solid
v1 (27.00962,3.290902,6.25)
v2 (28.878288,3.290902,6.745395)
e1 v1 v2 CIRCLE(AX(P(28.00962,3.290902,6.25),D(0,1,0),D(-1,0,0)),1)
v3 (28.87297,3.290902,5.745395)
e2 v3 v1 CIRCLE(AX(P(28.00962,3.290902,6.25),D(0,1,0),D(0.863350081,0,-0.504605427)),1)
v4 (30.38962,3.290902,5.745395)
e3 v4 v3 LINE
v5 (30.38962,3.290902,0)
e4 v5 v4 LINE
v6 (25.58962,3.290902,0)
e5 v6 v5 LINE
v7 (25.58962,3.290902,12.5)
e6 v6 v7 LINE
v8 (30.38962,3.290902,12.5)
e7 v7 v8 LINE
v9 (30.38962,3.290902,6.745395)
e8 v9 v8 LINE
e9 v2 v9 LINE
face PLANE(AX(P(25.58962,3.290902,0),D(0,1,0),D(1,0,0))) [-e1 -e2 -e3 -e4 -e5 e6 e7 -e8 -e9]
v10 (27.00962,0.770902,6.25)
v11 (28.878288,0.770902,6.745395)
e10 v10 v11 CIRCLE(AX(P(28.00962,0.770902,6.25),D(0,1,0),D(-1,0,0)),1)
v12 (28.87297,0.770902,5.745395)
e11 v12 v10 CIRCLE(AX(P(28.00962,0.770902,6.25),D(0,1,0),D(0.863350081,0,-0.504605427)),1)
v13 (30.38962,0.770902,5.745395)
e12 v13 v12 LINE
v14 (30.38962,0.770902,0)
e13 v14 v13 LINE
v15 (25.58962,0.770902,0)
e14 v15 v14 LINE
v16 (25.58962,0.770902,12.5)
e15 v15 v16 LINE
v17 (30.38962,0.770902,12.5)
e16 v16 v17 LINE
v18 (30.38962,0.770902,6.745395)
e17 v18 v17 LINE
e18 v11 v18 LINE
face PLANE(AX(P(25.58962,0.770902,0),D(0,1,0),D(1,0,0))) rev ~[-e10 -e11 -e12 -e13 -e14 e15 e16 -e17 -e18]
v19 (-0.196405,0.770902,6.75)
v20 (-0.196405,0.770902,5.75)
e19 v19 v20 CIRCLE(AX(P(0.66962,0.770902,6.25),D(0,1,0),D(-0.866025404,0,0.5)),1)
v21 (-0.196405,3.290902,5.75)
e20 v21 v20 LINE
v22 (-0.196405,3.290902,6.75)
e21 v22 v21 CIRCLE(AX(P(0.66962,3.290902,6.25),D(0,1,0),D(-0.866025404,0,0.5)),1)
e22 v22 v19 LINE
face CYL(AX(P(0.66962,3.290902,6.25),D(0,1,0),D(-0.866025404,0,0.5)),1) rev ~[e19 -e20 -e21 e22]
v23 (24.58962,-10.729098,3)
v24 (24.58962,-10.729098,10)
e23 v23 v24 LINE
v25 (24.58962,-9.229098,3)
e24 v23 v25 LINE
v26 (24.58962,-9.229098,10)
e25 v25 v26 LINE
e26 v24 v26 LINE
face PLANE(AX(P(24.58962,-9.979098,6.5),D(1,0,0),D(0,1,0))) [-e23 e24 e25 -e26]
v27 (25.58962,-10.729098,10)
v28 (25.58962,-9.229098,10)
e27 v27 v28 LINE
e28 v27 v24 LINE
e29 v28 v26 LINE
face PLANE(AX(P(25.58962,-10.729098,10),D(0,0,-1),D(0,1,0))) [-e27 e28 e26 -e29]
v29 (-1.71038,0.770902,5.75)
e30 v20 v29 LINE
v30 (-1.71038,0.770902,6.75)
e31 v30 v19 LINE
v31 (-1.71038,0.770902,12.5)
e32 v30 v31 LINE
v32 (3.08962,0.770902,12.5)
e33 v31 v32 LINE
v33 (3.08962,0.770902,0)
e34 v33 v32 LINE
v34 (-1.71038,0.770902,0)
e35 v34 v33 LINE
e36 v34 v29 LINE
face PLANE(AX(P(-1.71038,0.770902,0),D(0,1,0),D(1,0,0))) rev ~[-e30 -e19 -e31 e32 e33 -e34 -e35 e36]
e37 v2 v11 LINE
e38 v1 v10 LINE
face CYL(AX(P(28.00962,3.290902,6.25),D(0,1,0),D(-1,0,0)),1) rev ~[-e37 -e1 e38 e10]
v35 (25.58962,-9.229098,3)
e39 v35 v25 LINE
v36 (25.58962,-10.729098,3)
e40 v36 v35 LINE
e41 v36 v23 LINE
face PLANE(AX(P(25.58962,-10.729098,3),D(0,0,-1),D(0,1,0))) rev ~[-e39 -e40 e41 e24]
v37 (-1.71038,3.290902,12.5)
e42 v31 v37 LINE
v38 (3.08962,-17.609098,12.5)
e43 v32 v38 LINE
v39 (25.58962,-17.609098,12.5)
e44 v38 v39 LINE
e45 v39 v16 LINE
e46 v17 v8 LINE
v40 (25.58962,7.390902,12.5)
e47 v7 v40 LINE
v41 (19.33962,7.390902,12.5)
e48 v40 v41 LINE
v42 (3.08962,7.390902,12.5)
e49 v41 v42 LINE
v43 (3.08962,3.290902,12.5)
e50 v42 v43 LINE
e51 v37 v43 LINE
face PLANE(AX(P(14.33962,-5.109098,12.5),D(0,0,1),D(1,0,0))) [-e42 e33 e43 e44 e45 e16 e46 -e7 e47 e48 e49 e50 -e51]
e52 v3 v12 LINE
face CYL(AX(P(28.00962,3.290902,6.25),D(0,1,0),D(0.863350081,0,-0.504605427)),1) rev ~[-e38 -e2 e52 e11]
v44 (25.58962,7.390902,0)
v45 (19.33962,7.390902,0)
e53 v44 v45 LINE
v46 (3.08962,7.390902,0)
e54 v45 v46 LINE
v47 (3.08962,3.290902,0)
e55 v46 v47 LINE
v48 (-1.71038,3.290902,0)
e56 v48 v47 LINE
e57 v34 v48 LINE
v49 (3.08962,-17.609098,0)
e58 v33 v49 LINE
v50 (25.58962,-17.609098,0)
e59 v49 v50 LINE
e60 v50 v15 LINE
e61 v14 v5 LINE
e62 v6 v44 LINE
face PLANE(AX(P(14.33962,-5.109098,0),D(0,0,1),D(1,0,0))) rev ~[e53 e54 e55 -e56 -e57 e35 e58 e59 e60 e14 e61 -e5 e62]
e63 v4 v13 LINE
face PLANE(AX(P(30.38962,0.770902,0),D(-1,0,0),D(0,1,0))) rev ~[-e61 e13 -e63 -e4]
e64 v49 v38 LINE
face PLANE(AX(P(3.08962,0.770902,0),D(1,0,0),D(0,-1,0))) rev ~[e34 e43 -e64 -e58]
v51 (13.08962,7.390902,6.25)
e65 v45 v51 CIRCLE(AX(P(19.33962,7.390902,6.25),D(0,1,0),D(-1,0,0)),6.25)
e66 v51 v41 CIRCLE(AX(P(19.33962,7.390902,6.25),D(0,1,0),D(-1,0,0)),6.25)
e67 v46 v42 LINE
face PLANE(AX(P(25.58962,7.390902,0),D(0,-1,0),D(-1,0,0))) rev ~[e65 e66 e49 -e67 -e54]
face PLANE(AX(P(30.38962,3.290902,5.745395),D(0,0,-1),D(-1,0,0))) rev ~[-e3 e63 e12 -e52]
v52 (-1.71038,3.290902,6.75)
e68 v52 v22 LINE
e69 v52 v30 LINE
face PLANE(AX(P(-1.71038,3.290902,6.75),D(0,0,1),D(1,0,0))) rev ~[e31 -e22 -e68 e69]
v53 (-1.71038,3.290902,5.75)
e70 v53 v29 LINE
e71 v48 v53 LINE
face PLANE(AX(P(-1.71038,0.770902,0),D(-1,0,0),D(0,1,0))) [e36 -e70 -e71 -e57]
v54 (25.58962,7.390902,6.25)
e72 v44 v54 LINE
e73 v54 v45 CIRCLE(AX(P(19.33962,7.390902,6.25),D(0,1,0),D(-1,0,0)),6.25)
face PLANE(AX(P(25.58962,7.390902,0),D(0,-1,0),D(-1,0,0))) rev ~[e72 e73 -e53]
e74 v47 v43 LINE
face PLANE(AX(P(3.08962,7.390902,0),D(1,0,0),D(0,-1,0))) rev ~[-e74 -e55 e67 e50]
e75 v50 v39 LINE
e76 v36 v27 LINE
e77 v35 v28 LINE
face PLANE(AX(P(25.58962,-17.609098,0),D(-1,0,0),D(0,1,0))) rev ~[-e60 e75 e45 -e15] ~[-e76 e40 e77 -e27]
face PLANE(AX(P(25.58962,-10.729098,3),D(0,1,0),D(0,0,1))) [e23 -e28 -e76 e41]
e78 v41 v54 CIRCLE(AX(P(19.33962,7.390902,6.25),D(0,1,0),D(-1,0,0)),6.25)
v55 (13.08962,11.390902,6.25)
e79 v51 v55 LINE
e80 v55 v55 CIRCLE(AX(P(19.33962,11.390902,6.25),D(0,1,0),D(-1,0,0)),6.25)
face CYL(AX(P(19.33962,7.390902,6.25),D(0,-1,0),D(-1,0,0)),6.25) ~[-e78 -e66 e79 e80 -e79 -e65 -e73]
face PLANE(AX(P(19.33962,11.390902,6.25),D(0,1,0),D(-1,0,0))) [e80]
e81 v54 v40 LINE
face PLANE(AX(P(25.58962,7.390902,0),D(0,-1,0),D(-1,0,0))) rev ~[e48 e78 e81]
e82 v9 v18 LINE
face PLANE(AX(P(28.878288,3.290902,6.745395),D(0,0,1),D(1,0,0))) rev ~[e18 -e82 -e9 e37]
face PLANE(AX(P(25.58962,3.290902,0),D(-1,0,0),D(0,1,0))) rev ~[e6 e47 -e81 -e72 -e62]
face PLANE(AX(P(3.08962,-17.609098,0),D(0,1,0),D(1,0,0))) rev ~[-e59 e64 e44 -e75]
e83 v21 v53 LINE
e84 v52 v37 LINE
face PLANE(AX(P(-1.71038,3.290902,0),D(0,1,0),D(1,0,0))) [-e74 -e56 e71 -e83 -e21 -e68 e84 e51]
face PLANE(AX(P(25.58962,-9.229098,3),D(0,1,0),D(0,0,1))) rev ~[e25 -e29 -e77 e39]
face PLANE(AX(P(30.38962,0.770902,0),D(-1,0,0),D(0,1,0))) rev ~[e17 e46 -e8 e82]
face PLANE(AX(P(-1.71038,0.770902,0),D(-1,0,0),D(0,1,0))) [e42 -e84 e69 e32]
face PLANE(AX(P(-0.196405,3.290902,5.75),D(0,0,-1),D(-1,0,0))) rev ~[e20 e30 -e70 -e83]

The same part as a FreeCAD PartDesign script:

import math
import FreeCAD as App
import Part
import Sketcher
from FreeCAD import Vector
Q = App.Units.Quantity

doc = App.newDocument("Part")
body = doc.addObject("PartDesign::Body", "Body")

# Sketch on XY plane
sketch1 = doc.addObject("Sketcher::SketchObject", "Sketch")
body.addObject(sketch1)
sketch1.AttachmentSupport = (doc.XY_Plane, [""])
sketch1.MapMode = "FlatFace"
sketch1.addGeometry(Part.LineSegment(Vector(25.6, 7.4, 0), Vector(3.1, 7.4, 0)), False)
sketch1.addGeometry(Part.LineSegment(Vector(3.1, 7.4, 0), Vector(3.1, 3.3, 0)), False)
sketch1.addGeometry(Part.LineSegment(Vector(3.1, 3.3, 0), Vector(-1.7, 3.3, 0)), False)
sketch1.addGeometry(Part.LineSegment(Vector(-1.7, 3.3, 0), Vector(-1.7, 0.8, 0)), False)
sketch1.addGeometry(Part.LineSegment(Vector(-1.7, 0.8, 0), Vector(3.1, 0.8, 0)), False)
sketch1.addGeometry(Part.LineSegment(Vector(3.1, 0.8, 0), Vector(3.1, -17.6, 0)), False)
sketch1.addGeometry(Part.LineSegment(Vector(3.1, -17.6, 0), Vector(25.6, -17.6, 0)), False)
sketch1.addGeometry(Part.LineSegment(Vector(25.6, -17.6, 0), Vector(25.6, 0.8, 0)), False)
sketch1.addGeometry(Part.LineSegment(Vector(25.6, 0.8, 0), Vector(30.4, 0.8, 0)), False)
sketch1.addGeometry(Part.LineSegment(Vector(30.4, 0.8, 0), Vector(30.4, 3.3, 0)), False)
sketch1.addGeometry(Part.LineSegment(Vector(30.4, 3.3, 0), Vector(25.6, 3.3, 0)), False)
sketch1.addGeometry(Part.LineSegment(Vector(25.6, 3.3, 0), Vector(25.6, 7.4, 0)), False)
sketch1.addConstraint(Sketcher.Constraint("Coincident", 0, 2, 1, 1))
sketch1.addConstraint(Sketcher.Constraint("Coincident", 1, 2, 2, 1))
sketch1.addConstraint(Sketcher.Constraint("Coincident", 2, 2, 3, 1))
sketch1.addConstraint(Sketcher.Constraint("Coincident", 3, 2, 4, 1))
sketch1.addConstraint(Sketcher.Constraint("Coincident", 4, 2, 5, 1))
sketch1.addConstraint(Sketcher.Constraint("Coincident", 5, 2, 6, 1))
sketch1.addConstraint(Sketcher.Constraint("Coincident", 6, 2, 7, 1))
sketch1.addConstraint(Sketcher.Constraint("Coincident", 7, 2, 8, 1))
sketch1.addConstraint(Sketcher.Constraint("Coincident", 8, 2, 9, 1))
sketch1.addConstraint(Sketcher.Constraint("Coincident", 9, 2, 10, 1))
sketch1.addConstraint(Sketcher.Constraint("Coincident", 10, 2, 11, 1))
sketch1.addConstraint(Sketcher.Constraint("Coincident", 11, 2, 0, 1))
sketch1.addConstraint(Sketcher.Constraint("Horizontal", 0))
sketch1.addConstraint(Sketcher.Constraint("Vertical", 1))
sketch1.addConstraint(Sketcher.Constraint("Horizontal", 2))
sketch1.addConstraint(Sketcher.Constraint("Vertical", 3))
sketch1.addConstraint(Sketcher.Constraint("Horizontal", 4))
sketch1.addConstraint(Sketcher.Constraint("Vertical", 5))
sketch1.addConstraint(Sketcher.Constraint("Horizontal", 6))
sketch1.addConstraint(Sketcher.Constraint("Vertical", 7))
sketch1.addConstraint(Sketcher.Constraint("Horizontal", 8))
sketch1.addConstraint(Sketcher.Constraint("Vertical", 9))
sketch1.addConstraint(Sketcher.Constraint("Horizontal", 10))
sketch1.addConstraint(Sketcher.Constraint("Vertical", 11))
sketch1.addConstraint(Sketcher.Constraint("Horizontal", 4, 2, 7, 2))
sketch1.addConstraint(Sketcher.Constraint("Horizontal", 2, 2, 9, 2))
sketch1.addConstraint(Sketcher.Constraint("Vertical", 1, 2, 4, 2))
sketch1.addConstraint(Sketcher.Constraint("Vertical", 7, 2, 10, 2))
sketch1.addConstraint(Sketcher.Constraint("Equal", 4, 8))
sketch1.addConstraint(Sketcher.Constraint("DistanceX", 0, 2, 0, 1, Q("22.5 mm")))
sketch1.addConstraint(Sketcher.Constraint("DistanceX", 2, 2, 2, 1, Q("4.8 mm")))
sketch1.addConstraint(Sketcher.Constraint("DistanceY", 1, 2, 1, 1, Q("4.1 mm")))
sketch1.addConstraint(Sketcher.Constraint("DistanceY", 5, 2, 0, 2, Q("25 mm")))
sketch1.addConstraint(Sketcher.Constraint("DistanceY", 3, 2, 3, 1, Q("2.52 mm")))
sketch1.addConstraint(Sketcher.Constraint("DistanceY", -1, 1, 0, 2, Q("7.390902 mm")))
sketch1.addConstraint(Sketcher.Constraint("DistanceX", -1, 1, 0, 2, Q("3.08962 mm")))
pad1 = doc.addObject("PartDesign::Pad", "Pad")
body.addObject(pad1)
pad1.Profile = sketch1
pad1.Length = 12.5

# Sketch on YZ plane
sketch2 = doc.addObject("Sketcher::SketchObject", "Sketch001")
body.addObject(sketch2)
sketch2.AttachmentSupport = (doc.YZ_Plane, [""])
sketch2.MapMode = "FlatFace"
sketch2.AttachmentOffset = App.Placement(Vector(0, 0, 25.58962), App.Rotation())
sketch2.addGeometry(Part.LineSegment(Vector(-10.7, 10, 0), Vector(-10.7, 3, 0)), False)
sketch2.addGeometry(Part.LineSegment(Vector(-10.7, 3, 0), Vector(-9.2, 3, 0)), False)
sketch2.addGeometry(Part.LineSegment(Vector(-9.2, 3, 0), Vector(-9.2, 10, 0)), False)
sketch2.addGeometry(Part.LineSegment(Vector(-9.2, 10, 0), Vector(-10.7, 10, 0)), False)
sketch2.addConstraint(Sketcher.Constraint("Coincident", 0, 2, 1, 1))
sketch2.addConstraint(Sketcher.Constraint("Coincident", 1, 2, 2, 1))
sketch2.addConstraint(Sketcher.Constraint("Coincident", 2, 2, 3, 1))
sketch2.addConstraint(Sketcher.Constraint("Coincident", 3, 2, 0, 1))
sketch2.addConstraint(Sketcher.Constraint("Vertical", 0))
sketch2.addConstraint(Sketcher.Constraint("Horizontal", 1))
sketch2.addConstraint(Sketcher.Constraint("Vertical", 2))
sketch2.addConstraint(Sketcher.Constraint("Horizontal", 3))
sketch2.addConstraint(Sketcher.Constraint("DistanceY", 0, 2, 0, 1, Q("7 mm")))
sketch2.addConstraint(Sketcher.Constraint("DistanceX", 1, 1, 1, 2, Q("1.5 mm")))
sketch2.addConstraint(Sketcher.Constraint("DistanceY", -1, 1, 0, 2, Q("3 mm")))
sketch2.addConstraint(Sketcher.Constraint("DistanceX", 0, 2, -1, 1, Q("10.729098 mm")))
pocket1 = doc.addObject("PartDesign::Pocket", "Pocket")
body.addObject(pocket1)
pocket1.Profile = sketch2
pocket1.Length = 1

# Sketch on XZ plane
sketch3 = doc.addObject("Sketcher::SketchObject", "Sketch002")
body.addObject(sketch3)
sketch3.AttachmentSupport = (doc.XZ_Plane, [""])
sketch3.MapMode = "FlatFace"
sketch3.AttachmentOffset = App.Placement(Vector(0, 0, -7.390902), App.Rotation())
sketch3.addGeometry(Part.Circle(Vector(19, 6, 0), Vector(0, 0, 1), 6), False)
sketch3.addConstraint(Sketcher.Constraint("Diameter", 0, Q("12.5 mm")))
sketch3.addConstraint(Sketcher.Constraint("DistanceY", -1, 1, 0, 3, Q("6.25 mm")))
sketch3.addConstraint(Sketcher.Constraint("DistanceX", -1, 1, 0, 3, Q("19.33962 mm")))
pad2 = doc.addObject("PartDesign::Pad", "Pad001")
body.addObject(pad2)
pad2.Profile = sketch3
pad2.Length = 4
pad2.Reversed = True

# Sketch on XZ plane
sketch4 = doc.addObject("Sketcher::SketchObject", "Sketch003")
body.addObject(sketch4)
sketch4.AttachmentSupport = (doc.XZ_Plane, [""])
sketch4.MapMode = "FlatFace"
sketch4.AttachmentOffset = App.Placement(Vector(0, 0, -3.290902), App.Rotation())
sketch4.addGeometry(Part.LineSegment(Vector(30.4, 5.7, 0), Vector(28.9, 5.7, 0)), False)
sketch4.addGeometry(Part.ArcOfCircle(Part.Circle(Vector(28, 6.2, 0), Vector(0, 0, 1), 1), math.radians(180), math.radians(330)), False)
sketch4.addGeometry(Part.ArcOfCircle(Part.Circle(Vector(28, 6.2, 0), Vector(0, 0, 1), 1), math.radians(30), math.radians(180)), False)
sketch4.addGeometry(Part.LineSegment(Vector(28.9, 6.7, 0), Vector(30.4, 6.7, 0)), False)
sketch4.addGeometry(Part.LineSegment(Vector(30.4, 6.7, 0), Vector(30.4, 5.7, 0)), False)
sketch4.addConstraint(Sketcher.Constraint("Coincident", 0, 2, 1, 2))
sketch4.addConstraint(Sketcher.Constraint("Tangent", 1, 1, 2, 2))
sketch4.addConstraint(Sketcher.Constraint("Coincident", 2, 1, 3, 1))
sketch4.addConstraint(Sketcher.Constraint("Coincident", 3, 2, 4, 1))
sketch4.addConstraint(Sketcher.Constraint("Coincident", 4, 2, 0, 1))
sketch4.addConstraint(Sketcher.Constraint("Horizontal", 0))
sketch4.addConstraint(Sketcher.Constraint("Horizontal", 3))
sketch4.addConstraint(Sketcher.Constraint("Vertical", 4))
sketch4.addConstraint(Sketcher.Constraint("Equal", 1, 2))
sketch4.addConstraint(Sketcher.Constraint("Horizontal", 2, 3, 1, 1))
sketch4.addConstraint(Sketcher.Constraint("Radius", 1, Q("1 mm")))
sketch4.addConstraint(Sketcher.Constraint("DistanceY", 4, 2, 4, 1, Q("1 mm")))
sketch4.addConstraint(Sketcher.Constraint("DistanceY", -1, 1, 1, 3, Q("6.25 mm")))
sketch4.addConstraint(Sketcher.Constraint("DistanceX", 2, 3, 3, 2, Q("2.38 mm")))
sketch4.addConstraint(Sketcher.Constraint("DistanceX", 0, 2, 0, 1, Q("1.51665 mm")))
sketch4.addConstraint(Sketcher.Constraint("DistanceX", -1, 1, 1, 3, Q("28.00962 mm")))
pocket2 = doc.addObject("PartDesign::Pocket", "Pocket001")
body.addObject(pocket2)
pocket2.Profile = sketch4
pocket2.Type = "ThroughAll"
pocket2.Reversed = True

# Sketch on XZ plane
sketch5 = doc.addObject("Sketcher::SketchObject", "Sketch004")
body.addObject(sketch5)
sketch5.AttachmentSupport = (doc.XZ_Plane, [""])
sketch5.MapMode = "FlatFace"
sketch5.AttachmentOffset = App.Placement(Vector(0, 0, -3.290902), App.Rotation())
sketch5.addGeometry(Part.LineSegment(Vector(-0.2, 5.8, 0), Vector(-1.7, 5.8, 0)), False)
sketch5.addGeometry(Part.LineSegment(Vector(-1.7, 5.8, 0), Vector(-1.7, 6.8, 0)), False)
sketch5.addGeometry(Part.LineSegment(Vector(-1.7, 6.8, 0), Vector(-0.2, 6.8, 0)), False)
sketch5.addGeometry(Part.ArcOfCircle(Part.Circle(Vector(0.7, 6.2, 0), Vector(0, 0, 1), 1), math.radians(-150), math.radians(150)), False)
sketch5.addConstraint(Sketcher.Constraint("Coincident", 0, 2, 1, 1))
sketch5.addConstraint(Sketcher.Constraint("Coincident", 1, 2, 2, 1))
sketch5.addConstraint(Sketcher.Constraint("Coincident", 2, 2, 3, 2))
sketch5.addConstraint(Sketcher.Constraint("Coincident", 3, 1, 0, 1))
sketch5.addConstraint(Sketcher.Constraint("Horizontal", 0))
sketch5.addConstraint(Sketcher.Constraint("Vertical", 1))
sketch5.addConstraint(Sketcher.Constraint("Horizontal", 2))
sketch5.addConstraint(Sketcher.Constraint("Vertical", 2, 2, 3, 1))
sketch5.addConstraint(Sketcher.Constraint("Radius", 3, Q("1 mm")))
sketch5.addConstraint(Sketcher.Constraint("DistanceY", 1, 1, 1, 2, Q("1 mm")))
sketch5.addConstraint(Sketcher.Constraint("DistanceY", -1, 1, 3, 3, Q("6.25 mm")))
sketch5.addConstraint(Sketcher.Constraint("DistanceX", 0, 2, 3, 3, Q("2.38 mm")))
sketch5.addConstraint(Sketcher.Constraint("DistanceX", -1, 1, 3, 3, Q("0.66962 mm")))
pocket3 = doc.addObject("PartDesign::Pocket", "Pocket002")
body.addObject(pocket3)
pocket3.Profile = sketch5
pocket3.Type = "ThroughAll"
pocket3.Reversed = True

doc.recompute()
